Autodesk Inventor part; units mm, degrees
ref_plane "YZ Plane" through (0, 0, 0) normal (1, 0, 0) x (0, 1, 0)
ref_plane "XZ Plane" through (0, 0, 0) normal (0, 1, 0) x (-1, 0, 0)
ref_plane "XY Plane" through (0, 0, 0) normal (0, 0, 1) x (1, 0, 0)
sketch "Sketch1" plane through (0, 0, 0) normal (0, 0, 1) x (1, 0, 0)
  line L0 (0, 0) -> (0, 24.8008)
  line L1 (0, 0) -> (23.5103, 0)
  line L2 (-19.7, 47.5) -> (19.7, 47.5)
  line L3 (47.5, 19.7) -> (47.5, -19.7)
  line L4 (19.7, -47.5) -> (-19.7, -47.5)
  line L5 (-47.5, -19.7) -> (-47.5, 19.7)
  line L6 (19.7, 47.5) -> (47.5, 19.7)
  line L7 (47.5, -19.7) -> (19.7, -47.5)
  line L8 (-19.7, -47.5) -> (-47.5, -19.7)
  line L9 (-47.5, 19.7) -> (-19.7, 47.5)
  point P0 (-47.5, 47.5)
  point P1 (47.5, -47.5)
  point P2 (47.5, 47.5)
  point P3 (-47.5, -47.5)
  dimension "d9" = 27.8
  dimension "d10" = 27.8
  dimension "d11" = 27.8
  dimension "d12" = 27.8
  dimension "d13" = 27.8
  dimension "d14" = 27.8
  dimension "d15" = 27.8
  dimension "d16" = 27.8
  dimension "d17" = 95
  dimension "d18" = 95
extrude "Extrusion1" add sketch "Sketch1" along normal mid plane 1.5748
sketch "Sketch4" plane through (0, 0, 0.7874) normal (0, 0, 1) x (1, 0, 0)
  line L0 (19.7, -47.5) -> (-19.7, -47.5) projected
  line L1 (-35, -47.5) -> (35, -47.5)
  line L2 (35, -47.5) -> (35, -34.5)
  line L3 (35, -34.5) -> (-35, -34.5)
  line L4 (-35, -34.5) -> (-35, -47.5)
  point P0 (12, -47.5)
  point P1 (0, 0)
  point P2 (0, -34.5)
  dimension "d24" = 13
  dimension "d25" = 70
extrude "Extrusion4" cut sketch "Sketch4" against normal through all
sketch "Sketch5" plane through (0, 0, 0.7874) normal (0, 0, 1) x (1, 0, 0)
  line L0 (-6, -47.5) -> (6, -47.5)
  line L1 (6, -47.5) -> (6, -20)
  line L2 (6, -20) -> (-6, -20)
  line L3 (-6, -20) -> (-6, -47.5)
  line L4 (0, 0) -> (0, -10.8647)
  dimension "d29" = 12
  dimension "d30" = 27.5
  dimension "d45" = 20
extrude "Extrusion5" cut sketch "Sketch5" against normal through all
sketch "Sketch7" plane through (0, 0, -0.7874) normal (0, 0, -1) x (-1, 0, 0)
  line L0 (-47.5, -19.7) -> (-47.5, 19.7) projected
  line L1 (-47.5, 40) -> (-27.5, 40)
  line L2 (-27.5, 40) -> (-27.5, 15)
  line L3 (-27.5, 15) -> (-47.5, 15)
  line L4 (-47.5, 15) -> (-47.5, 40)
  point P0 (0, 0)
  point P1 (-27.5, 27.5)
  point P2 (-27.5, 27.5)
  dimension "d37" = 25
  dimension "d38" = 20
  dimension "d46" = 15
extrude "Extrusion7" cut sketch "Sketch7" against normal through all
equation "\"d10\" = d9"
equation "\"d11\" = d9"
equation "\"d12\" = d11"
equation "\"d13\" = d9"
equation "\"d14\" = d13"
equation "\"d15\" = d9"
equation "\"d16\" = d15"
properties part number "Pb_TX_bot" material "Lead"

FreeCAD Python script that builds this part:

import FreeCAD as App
import Part
import Sketcher


def add_polygon(sketch, points):
    """Adds a closed chain of lines whose ends are joined by coincident constraints."""
    first, n = sketch.GeometryCount, len(points)
    for a, b in zip(points, points[1:] + points[:1]):
        sketch.addGeometry(Part.LineSegment(App.Vector(*a, 0), App.Vector(*b, 0)), False)
    for i in range(n):
        sketch.addConstraint(Sketcher.Constraint("Coincident", first + i, 2, first + (i + 1) % n, 1))

doc = App.newDocument("Part")
body = doc.addObject("PartDesign::Body", "Body")

# Sketch on XY plane
sketch1 = body.newObject("Sketcher::SketchObject", "Sketch")
sketch1.AttachmentSupport = (doc.getObject("XY_Plane"), [""])
sketch1.MapMode = "FlatFace"
add_polygon(sketch1, [(20, 48), (-20, 48), (-48, 20), (-48, -20), (-20, -48), (20, -48), (48, -20), (48, 20)])  # lines 0-7
sketch1.addConstraint([
    Sketcher.Constraint("Horizontal", 0),
    Sketcher.Constraint("Vertical", 2),
    Sketcher.Constraint("Horizontal", 4),
    Sketcher.Constraint("Vertical", 6),
    Sketcher.Constraint("Symmetric", 0, 2, 4, 2, -1, 1),
    Sketcher.Constraint("Symmetric", 1, 2, 5, 2, -1, 1),
    Sketcher.Constraint("Perpendicular", 1, 3),
    Sketcher.Constraint("Perpendicular", 5, 7),
    Sketcher.Constraint("Horizontal", 2, 2, 5, 2),
    Sketcher.Constraint("Horizontal", 1, 2, 6, 2),
    Sketcher.Constraint("Vertical", 0, 2, 3, 2),
    Sketcher.Constraint("Equal", 4, 2),
    Sketcher.Constraint("DistanceY", 3, 2, 0, 2, 95.0),
    Sketcher.Constraint("DistanceX", 1, 2, 0, 2, 27.8),
])
pad1 = body.newObject("PartDesign::Pad", "Pad")
pad1.Profile = sketch1
pad1.Length = 1.5748
pad1.Midplane = True

# Sketch on XY plane
sketch2 = body.newObject("Sketcher::SketchObject", "Sketch001")
sketch2.AttachmentSupport = (doc.getObject("XY_Plane"), [""])
sketch2.MapMode = "FlatFace"
sketch2.AttachmentOffset = App.Placement(App.Vector(0, 0, 0.7874), App.Rotation())
add_polygon(sketch2, [(-35, -48), (35, -48), (35, -34), (-35, -34)])  # lines 0-3
sketch2.addConstraint([
    Sketcher.Constraint("Horizontal", 0),
    Sketcher.Constraint("Vertical", 1),
    Sketcher.Constraint("Horizontal", 2),
    Sketcher.Constraint("Vertical", 3),
    Sketcher.Constraint("DistanceX", 0, 1, 0, 2, 70.0),
    Sketcher.Constraint("DistanceY", 1, 1, 1, 2, 13.0),
    Sketcher.Constraint("DistanceX", -1, 1, 0, 2, 35.0),
    Sketcher.Constraint("DistanceY", 0, 2, -1, 1, 47.5),
])
pocket1 = body.newObject("PartDesign::Pocket", "Pocket")
pocket1.Profile = sketch2
pocket1.Type = "ThroughAll"

# Sketch on XY plane
sketch3 = body.newObject("Sketcher::SketchObject", "Sketch002")
sketch3.AttachmentSupport = (doc.getObject("XY_Plane"), [""])
sketch3.MapMode = "FlatFace"
sketch3.AttachmentOffset = App.Placement(App.Vector(0, 0, 0.7874), App.Rotation())
add_polygon(sketch3, [(-6, -20), (-6, -48), (6, -48), (6, -20)])  # lines 0-3
sketch3.addConstraint([
    Sketcher.Constraint("Vertical", 0),
    Sketcher.Constraint("Horizontal", 1),
    Sketcher.Constraint("Vertical", 2),
    Sketcher.Constraint("Horizontal", 3),
    Sketcher.Constraint("DistanceX", 1, 1, 1, 2, 12.0),
    Sketcher.Constraint("DistanceY", 0, 2, 0, 1, 27.5),
    Sketcher.Constraint("DistanceY", 2, 2, -1, 1, 20.0),
    Sketcher.Constraint("DistanceX", 0, 2, -1, 1, 6.0),
])
pocket2 = body.newObject("PartDesign::Pocket", "Pocket001")
pocket2.Profile = sketch3
pocket2.Type = "ThroughAll"

# Sketch on XY plane
sketch4 = body.newObject("Sketcher::SketchObject", "Sketch003")
sketch4.AttachmentSupport = (doc.getObject("XY_Plane"), [""])
sketch4.MapMode = "FlatFace"
sketch4.AttachmentOffset = App.Placement(App.Vector(0, 0, -0.7874), App.Rotation())
add_polygon(sketch4, [(48, 40), (48, 15), (28, 15), (28, 40)])  # lines 0-3
sketch4.addConstraint([
    Sketcher.Constraint("Vertical", 0),
    Sketcher.Constraint("Horizontal", 1),
    Sketcher.Constraint("Vertical", 2),
    Sketcher.Constraint("Horizontal", 3),
    Sketcher.Constraint("DistanceX", 1, 2, 1, 1, 20.0),
    Sketcher.Constraint("DistanceY", 0, 2, 0, 1, 25.0),
    Sketcher.Constraint("DistanceY", -1, 1, 0, 2, 15.0),
    Sketcher.Constraint("DistanceX", -1, 1, 0, 2, 47.5),
])
pocket3 = body.newObject("PartDesign::Pocket", "Pocket002")
pocket3.Profile = sketch4
pocket3.Type = "ThroughAll"
pocket3.Reversed = True

doc.recompute()
